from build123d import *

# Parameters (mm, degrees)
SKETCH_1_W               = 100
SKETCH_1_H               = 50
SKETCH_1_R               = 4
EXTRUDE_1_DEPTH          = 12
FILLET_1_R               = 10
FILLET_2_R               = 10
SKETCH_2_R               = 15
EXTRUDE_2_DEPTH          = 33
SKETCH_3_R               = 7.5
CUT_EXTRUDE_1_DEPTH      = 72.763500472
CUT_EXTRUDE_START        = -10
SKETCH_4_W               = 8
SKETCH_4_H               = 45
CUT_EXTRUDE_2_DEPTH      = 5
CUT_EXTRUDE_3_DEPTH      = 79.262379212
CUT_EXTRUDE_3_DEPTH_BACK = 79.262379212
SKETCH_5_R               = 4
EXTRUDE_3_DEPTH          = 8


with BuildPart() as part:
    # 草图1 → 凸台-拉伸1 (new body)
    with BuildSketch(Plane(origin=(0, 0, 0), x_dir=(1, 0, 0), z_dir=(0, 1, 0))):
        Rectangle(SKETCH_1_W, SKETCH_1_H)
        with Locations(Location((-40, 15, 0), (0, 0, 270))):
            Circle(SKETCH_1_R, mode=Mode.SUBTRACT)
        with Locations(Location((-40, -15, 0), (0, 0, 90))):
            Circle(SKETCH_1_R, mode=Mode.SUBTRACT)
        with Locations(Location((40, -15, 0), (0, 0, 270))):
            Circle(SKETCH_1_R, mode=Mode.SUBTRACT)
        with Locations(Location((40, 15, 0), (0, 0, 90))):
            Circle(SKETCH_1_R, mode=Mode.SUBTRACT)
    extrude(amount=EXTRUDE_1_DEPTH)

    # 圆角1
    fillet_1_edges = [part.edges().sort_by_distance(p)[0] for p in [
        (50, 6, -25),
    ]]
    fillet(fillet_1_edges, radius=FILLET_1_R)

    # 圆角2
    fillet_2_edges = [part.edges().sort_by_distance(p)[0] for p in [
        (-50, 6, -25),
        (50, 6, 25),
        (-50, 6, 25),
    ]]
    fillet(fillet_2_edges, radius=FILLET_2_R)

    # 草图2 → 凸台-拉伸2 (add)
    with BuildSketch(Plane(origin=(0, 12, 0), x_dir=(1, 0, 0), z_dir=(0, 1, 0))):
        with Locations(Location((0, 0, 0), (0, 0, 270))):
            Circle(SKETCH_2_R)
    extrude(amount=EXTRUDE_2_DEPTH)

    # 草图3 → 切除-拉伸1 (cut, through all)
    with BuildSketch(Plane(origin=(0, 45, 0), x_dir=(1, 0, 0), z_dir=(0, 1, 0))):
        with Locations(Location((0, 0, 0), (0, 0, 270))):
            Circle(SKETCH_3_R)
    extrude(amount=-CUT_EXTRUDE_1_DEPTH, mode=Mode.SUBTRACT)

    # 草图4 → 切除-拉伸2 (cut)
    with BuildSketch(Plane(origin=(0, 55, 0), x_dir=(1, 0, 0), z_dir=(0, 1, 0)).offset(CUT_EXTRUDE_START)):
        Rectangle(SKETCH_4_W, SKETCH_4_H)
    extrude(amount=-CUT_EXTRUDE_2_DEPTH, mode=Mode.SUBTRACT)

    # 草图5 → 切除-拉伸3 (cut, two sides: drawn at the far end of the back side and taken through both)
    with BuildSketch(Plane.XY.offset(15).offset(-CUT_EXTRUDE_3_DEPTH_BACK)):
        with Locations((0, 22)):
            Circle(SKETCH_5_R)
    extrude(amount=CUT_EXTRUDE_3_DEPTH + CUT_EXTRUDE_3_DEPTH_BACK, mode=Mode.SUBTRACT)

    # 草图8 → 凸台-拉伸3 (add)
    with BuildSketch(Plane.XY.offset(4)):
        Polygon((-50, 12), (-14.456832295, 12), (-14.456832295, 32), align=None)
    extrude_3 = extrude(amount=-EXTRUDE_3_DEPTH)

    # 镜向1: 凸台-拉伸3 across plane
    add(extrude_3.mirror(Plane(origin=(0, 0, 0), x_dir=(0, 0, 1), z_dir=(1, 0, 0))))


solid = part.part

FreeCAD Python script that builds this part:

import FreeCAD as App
import Part
import Sketcher
Q = App.Units.Quantity


def edges_at(feature, points):
    """Names of the edges that pass closest to the given points."""
    edges = feature.Shape.Edges
    near = lambda p: min(range(len(edges)), key=lambda i: edges[i].distToShape(Part.Vertex(*p))[0])
    return sorted({f"Edge{near(p) + 1}" for p in points})


def add_polygon(sketch, points):
    """Adds a closed chain of lines whose ends are joined by coincident constraints."""
    first, n = sketch.GeometryCount, len(points)
    for a, b in zip(points, points[1:] + points[:1]):
        sketch.addGeometry(Part.LineSegment(App.Vector(*a, 0), App.Vector(*b, 0)), False)
    for i in range(n):
        sketch.addConstraint(Sketcher.Constraint("Coincident", first + i, 2, first + (i + 1) % n, 1))

doc = App.newDocument("Part")
body = doc.addObject("PartDesign::Body", "Body")

# Sketch on XZ plane
sketch1 = body.newObject("Sketcher::SketchObject", "Sketch")
sketch1.AttachmentSupport = (doc.getObject("XZ_Plane"), [""])
sketch1.MapMode = "FlatFace"
add_polygon(sketch1, [(-50, -25), (-50, 25), (50, 25), (50, -25)])  # lines 0-3
sketch1.addGeometry(Part.Circle(App.Vector(-40, 15, 0), App.Vector(0, 0, 1), 4), False)  # 4
sketch1.addGeometry(Part.Circle(App.Vector(40, 15, 0), App.Vector(0, 0, 1), 4), False)  # 5
sketch1.addGeometry(Part.Circle(App.Vector(-40, -15, 0), App.Vector(0, 0, 1), 4), False)  # 6
sketch1.addGeometry(Part.Circle(App.Vector(40, -15, 0), App.Vector(0, 0, 1), 4), False)  # 7
sketch1.addConstraint(Sketcher.Constraint("Vertical", 0))
sketch1.addConstraint(Sketcher.Constraint("Horizontal", 1))
sketch1.addConstraint(Sketcher.Constraint("Vertical", 2))
sketch1.addConstraint(Sketcher.Constraint("Horizontal", 3))
sketch1.addConstraint(Sketcher.Constraint("Equal", 4, 5))
sketch1.addConstraint(Sketcher.Constraint("Equal", 5, 6))
sketch1.addConstraint(Sketcher.Constraint("Equal", 6, 7))
sketch1.addConstraint(Sketcher.Constraint("Symmetric", 5, 3, 6, 3, -1, 1))
sketch1.addConstraint(Sketcher.Constraint("Symmetric", 4, 3, 7, 3, -1, 1))
sketch1.addConstraint(Sketcher.Constraint("Symmetric", 0, 2, 2, 2, -1, 1))
sketch1.addConstraint(Sketcher.Constraint("Symmetric", 4, 3, 5, 3, -2))
sketch1.addConstraint(Sketcher.Constraint("Diameter", 4, Q("8 mm")))
sketch1.addConstraint(Sketcher.Constraint("DistanceX", 1, 1, 1, 2, Q("100 mm")))
sketch1.addConstraint(Sketcher.Constraint("DistanceY", 0, 1, 0, 2, Q("50 mm")))
sketch1.addConstraint(Sketcher.Constraint("DistanceX", 4, 3, -1, 1, Q("40 mm")))
sketch1.addConstraint(Sketcher.Constraint("DistanceY", -1, 1, 4, 3, Q("15 mm")))
pad1 = body.newObject("PartDesign::Pad", "Pad")
pad1.Profile = sketch1
pad1.Length = 12
pad1.Reversed = True
doc.recompute()

fillet = body.newObject("PartDesign::Fillet", "Fillet")
fillet.Base = (pad1, edges_at(pad1, [(50, 6, -25)]))
fillet.Radius = 10
doc.recompute()

fillet2 = body.newObject("PartDesign::Fillet", "Fillet001")
fillet2.Base = (fillet, edges_at(fillet, [(-50, 6, -25), (50, 6, 25), (-50, 6, 25)]))
fillet2.Radius = 10

# Sketch on XZ plane
sketch2 = body.newObject("Sketcher::SketchObject", "Sketch001")
sketch2.AttachmentSupport = (doc.getObject("XZ_Plane"), [""])
sketch2.MapMode = "FlatFace"
sketch2.AttachmentOffset = App.Placement(App.Vector(0, 0, -12), App.Rotation())
sketch2.addGeometry(Part.Circle(App.Vector(0, 0, 0), App.Vector(0, 0, 1), 15), False)
sketch2.addConstraint(Sketcher.Constraint("Coincident", 0, 3, -1, 1))
sketch2.addConstraint(Sketcher.Constraint("Diameter", 0, Q("30 mm")))
pad2 = body.newObject("PartDesign::Pad", "Pad001")
pad2.Profile = sketch2
pad2.Length = 33
pad2.Reversed = True

# Sketch on XZ plane
sketch3 = body.newObject("Sketcher::SketchObject", "Sketch002")
sketch3.AttachmentSupport = (doc.getObject("XZ_Plane"), [""])
sketch3.MapMode = "FlatFace"
sketch3.AttachmentOffset = App.Placement(App.Vector(0, 0, -45), App.Rotation())
sketch3.addGeometry(Part.Circle(App.Vector(0, 0, 0), App.Vector(0, 0, 1), 8), False)
sketch3.addConstraint(Sketcher.Constraint("Coincident", 0, 3, -1, 1))
sketch3.addConstraint(Sketcher.Constraint("Diameter", 0, Q("15 mm")))
pocket1 = body.newObject("PartDesign::Pocket", "Pocket")
pocket1.Profile = sketch3
pocket1.Type = "ThroughAll"
pocket1.Reversed = True

# Sketch on XZ plane
sketch4 = body.newObject("Sketcher::SketchObject", "Sketch003")
sketch4.AttachmentSupport = (doc.getObject("XZ_Plane"), [""])
sketch4.MapMode = "FlatFace"
sketch4.AttachmentOffset = App.Placement(App.Vector(0, 0, -45), App.Rotation())
add_polygon(sketch4, [(-4, -22), (-4, 22), (4, 22), (4, -22)])  # lines 0-3
sketch4.addConstraint(Sketcher.Constraint("Vertical", 0))
sketch4.addConstraint(Sketcher.Constraint("Horizontal", 1))
sketch4.addConstraint(Sketcher.Constraint("Vertical", 2))
sketch4.addConstraint(Sketcher.Constraint("Horizontal", 3))
sketch4.addConstraint(Sketcher.Constraint("Symmetric", 0, 2, 2, 2, -1, 1))
sketch4.addConstraint(Sketcher.Constraint("DistanceX", 1, 1, 1, 2, Q("8 mm")))
sketch4.addConstraint(Sketcher.Constraint("DistanceY", 0, 1, 0, 2, Q("45 mm")))
pocket2 = body.newObject("PartDesign::Pocket", "Pocket001")
pocket2.Profile = sketch4
pocket2.Length = 5
pocket2.Reversed = True

# Sketch on XY plane
sketch5 = body.newObject("Sketcher::SketchObject", "Sketch004")
sketch5.AttachmentSupport = (doc.getObject("XY_Plane"), [""])
sketch5.MapMode = "FlatFace"
sketch5.AttachmentOffset = App.Placement(App.Vector(0, 0, 15), App.Rotation())
sketch5.addGeometry(Part.Circle(App.Vector(0, 22, 0), App.Vector(0, 0, 1), 4), False)
sketch5.addConstraint(Sketcher.Constraint("PointOnObject", 0, 3, -2))
sketch5.addConstraint(Sketcher.Constraint("Diameter", 0, Q("8 mm")))
sketch5.addConstraint(Sketcher.Constraint("DistanceY", -1, 1, 0, 3, Q("22 mm")))
pocket3 = body.newObject("PartDesign::Pocket", "Pocket002")
pocket3.Profile = sketch5
pocket3.Type = "ThroughAll"
pocket3.Midplane = True

# Sketch on XY plane
sketch6 = body.newObject("Sketcher::SketchObject", "Sketch005")
sketch6.AttachmentSupport = (doc.getObject("XY_Plane"), [""])
sketch6.MapMode = "FlatFace"
sketch6.AttachmentOffset = App.Placement(App.Vector(0, 0, 4), App.Rotation())
add_polygon(sketch6, [(-50, 12), (-14, 12), (-14, 32)])  # lines 0-2
sketch6.addConstraint(Sketcher.Constraint("Horizontal", 0))
sketch6.addConstraint(Sketcher.Constraint("Vertical", 1))
sketch6.addConstraint(Sketcher.Constraint("DistanceY", 1, 1, 1, 2, Q("20 mm")))
sketch6.addConstraint(Sketcher.Constraint("DistanceY", -1, 1, 0, 2, Q("12 mm")))
sketch6.addConstraint(Sketcher.Constraint("DistanceX", 2, 2, -1, 1, Q("50 mm")))
sketch6.addConstraint(Sketcher.Constraint("Distance", 2, Q("40.783781 mm")))
pad3 = body.newObject("PartDesign::Pad", "Pad002")
pad3.Profile = sketch6
pad3.Length = 8
pad3.Reversed = True
doc.recompute()

mirrored = body.newObject("PartDesign::Mirrored", "Mirrored")
mirrored.Originals = [pad3]
mirrored.MirrorPlane = (doc.getObject("YZ_Plane"), [""])
body.Tip = mirrored

doc.recompute()
